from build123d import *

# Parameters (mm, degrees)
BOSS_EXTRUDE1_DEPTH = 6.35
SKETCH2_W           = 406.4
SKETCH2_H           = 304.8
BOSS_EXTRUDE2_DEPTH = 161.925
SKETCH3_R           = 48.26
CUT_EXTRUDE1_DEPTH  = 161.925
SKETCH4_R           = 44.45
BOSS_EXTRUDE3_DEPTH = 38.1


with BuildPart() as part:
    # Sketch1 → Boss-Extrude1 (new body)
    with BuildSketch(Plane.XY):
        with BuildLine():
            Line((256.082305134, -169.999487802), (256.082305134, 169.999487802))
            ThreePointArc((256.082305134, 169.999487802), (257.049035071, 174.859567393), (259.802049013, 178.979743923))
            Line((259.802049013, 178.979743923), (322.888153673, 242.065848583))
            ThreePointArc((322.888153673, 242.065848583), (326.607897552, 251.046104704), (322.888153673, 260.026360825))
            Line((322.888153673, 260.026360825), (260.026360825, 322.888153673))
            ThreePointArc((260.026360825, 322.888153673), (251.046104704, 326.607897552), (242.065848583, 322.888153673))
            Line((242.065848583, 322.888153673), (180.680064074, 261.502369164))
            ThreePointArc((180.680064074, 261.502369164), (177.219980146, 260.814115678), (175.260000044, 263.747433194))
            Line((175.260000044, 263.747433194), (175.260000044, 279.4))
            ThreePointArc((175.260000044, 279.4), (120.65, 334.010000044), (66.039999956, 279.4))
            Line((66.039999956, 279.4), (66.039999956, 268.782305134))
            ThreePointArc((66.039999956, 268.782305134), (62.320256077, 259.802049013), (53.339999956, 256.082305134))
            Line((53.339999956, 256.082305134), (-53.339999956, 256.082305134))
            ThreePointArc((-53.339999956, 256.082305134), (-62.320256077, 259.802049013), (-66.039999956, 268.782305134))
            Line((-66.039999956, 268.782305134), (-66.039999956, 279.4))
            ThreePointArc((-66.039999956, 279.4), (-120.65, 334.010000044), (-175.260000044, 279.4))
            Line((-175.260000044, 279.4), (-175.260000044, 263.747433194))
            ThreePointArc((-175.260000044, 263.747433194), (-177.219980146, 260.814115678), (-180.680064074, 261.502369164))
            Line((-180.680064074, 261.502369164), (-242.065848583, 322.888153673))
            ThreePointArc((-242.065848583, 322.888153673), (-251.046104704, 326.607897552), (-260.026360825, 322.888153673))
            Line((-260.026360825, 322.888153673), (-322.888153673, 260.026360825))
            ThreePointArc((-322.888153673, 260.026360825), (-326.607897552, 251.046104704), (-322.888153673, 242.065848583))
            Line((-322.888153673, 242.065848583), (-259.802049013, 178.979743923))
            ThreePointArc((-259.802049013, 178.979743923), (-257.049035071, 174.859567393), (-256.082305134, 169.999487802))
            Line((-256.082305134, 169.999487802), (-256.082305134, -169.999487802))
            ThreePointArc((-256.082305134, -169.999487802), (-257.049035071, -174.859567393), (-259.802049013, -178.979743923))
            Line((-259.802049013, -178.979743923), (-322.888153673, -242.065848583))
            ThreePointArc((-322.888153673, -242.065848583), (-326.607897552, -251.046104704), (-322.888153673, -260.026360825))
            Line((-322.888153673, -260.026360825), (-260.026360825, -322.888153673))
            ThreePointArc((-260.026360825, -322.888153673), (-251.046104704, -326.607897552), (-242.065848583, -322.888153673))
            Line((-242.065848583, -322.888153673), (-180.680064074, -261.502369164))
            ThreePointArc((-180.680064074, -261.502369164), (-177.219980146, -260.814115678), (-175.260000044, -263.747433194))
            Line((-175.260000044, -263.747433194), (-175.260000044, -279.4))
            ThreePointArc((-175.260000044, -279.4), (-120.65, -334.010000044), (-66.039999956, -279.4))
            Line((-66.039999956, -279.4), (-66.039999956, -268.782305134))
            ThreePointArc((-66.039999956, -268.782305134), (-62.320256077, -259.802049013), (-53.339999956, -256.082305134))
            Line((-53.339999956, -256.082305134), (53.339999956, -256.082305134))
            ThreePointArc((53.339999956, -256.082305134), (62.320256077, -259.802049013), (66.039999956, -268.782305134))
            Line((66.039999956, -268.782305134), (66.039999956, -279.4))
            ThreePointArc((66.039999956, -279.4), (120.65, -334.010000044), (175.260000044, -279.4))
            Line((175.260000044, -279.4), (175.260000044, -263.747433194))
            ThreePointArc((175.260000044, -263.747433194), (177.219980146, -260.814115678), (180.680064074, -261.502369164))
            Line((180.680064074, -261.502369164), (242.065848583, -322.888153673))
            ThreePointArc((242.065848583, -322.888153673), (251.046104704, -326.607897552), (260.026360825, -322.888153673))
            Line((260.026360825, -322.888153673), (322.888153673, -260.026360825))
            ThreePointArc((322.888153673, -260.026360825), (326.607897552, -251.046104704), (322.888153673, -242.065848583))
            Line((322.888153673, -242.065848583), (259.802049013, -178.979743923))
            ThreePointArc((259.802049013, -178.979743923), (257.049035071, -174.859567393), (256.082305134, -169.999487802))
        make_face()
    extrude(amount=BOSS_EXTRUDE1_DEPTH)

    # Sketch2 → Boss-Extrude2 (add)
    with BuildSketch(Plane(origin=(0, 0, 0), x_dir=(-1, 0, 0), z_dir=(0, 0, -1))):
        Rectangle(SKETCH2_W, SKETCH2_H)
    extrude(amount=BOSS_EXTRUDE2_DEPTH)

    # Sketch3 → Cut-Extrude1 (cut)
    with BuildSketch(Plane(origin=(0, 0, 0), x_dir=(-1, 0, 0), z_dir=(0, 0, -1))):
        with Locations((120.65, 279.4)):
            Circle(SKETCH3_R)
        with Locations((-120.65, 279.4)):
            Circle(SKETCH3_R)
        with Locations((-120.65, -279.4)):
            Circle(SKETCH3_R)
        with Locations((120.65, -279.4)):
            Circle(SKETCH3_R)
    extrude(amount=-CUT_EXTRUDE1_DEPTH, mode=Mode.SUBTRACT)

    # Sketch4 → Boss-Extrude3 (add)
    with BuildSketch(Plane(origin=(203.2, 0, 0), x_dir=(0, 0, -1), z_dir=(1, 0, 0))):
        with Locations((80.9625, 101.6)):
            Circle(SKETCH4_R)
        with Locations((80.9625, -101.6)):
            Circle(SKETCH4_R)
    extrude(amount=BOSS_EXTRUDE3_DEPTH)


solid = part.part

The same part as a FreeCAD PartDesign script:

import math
import FreeCAD as App
import Part
import Sketcher

V = App.Vector
Q = App.Units.Quantity

doc = App.newDocument("Part")
body = doc.addObject("PartDesign::Body", "Body")

# Sketch on XY plane
sketch1 = body.newObject("Sketcher::SketchObject", "Sketch")
sketch1.AttachmentSupport = (doc.getObject("XY_Plane"), [""])
sketch1.MapMode = "FlatFace"
sketch1.addGeometry([
    Part.LineSegment(V(256.1, -170, 0), V(256.1, 170, 0)),  # 0
    Part.ArcOfCircle(Part.Circle(V(268.8, 170, 0), V(0, 0, 1), 12.7), math.radians(135), math.radians(180)),  # 1
    Part.LineSegment(V(259.8, 179, 0), V(322.9, 242.1, 0)),  # 2
    Part.ArcOfCircle(Part.Circle(V(313.9, 251, 0), V(0, 0, 1), 12.7), math.radians(-45), math.radians(45)),  # 3
    Part.LineSegment(V(322.9, 260, 0), V(260, 322.9, 0)),  # 4
    Part.ArcOfCircle(Part.Circle(V(251, 313.9, 0), V(0, 0, 1), 12.7), math.radians(45), math.radians(135)),  # 5
    Part.LineSegment(V(242.1, 322.9, 0), V(180.7, 261.5, 0)),  # 6
    Part.ArcOfCircle(Part.Circle(V(178.4, 263.7, 0), V(0, 0, 1), 3.2), math.radians(180), math.radians(315)),  # 7
    Part.LineSegment(V(175.3, 263.7, 0), V(175.3, 279.4, 0)),  # 8
    Part.ArcOfCircle(Part.Circle(V(120.7, 279.4, 0), V(0, 0, 1), 54.6), math.radians(0), math.radians(180)),  # 9
    Part.LineSegment(V(66, 279.4, 0), V(66, 268.8, 0)),  # 10
    Part.ArcOfCircle(Part.Circle(V(53.3, 268.8, 0), V(0, 0, 1), 12.7), math.radians(-90), math.radians(0)),  # 11
    Part.LineSegment(V(53.3, 256.1, 0), V(-53.3, 256.1, 0)),  # 12
    Part.ArcOfCircle(Part.Circle(V(-53.3, 268.8, 0), V(0, 0, 1), 12.7), math.radians(180), math.radians(270)),  # 13
    Part.LineSegment(V(-66, 268.8, 0), V(-66, 279.4, 0)),  # 14
    Part.ArcOfCircle(Part.Circle(V(-120.7, 279.4, 0), V(0, 0, 1), 54.6), math.radians(0), math.radians(180)),  # 15
    Part.LineSegment(V(-175.3, 279.4, 0), V(-175.3, 263.7, 0)),  # 16
    Part.ArcOfCircle(Part.Circle(V(-178.4, 263.7, 0), V(0, 0, 1), 3.2), math.radians(-135), math.radians(0)),  # 17
    Part.LineSegment(V(-180.7, 261.5, 0), V(-242.1, 322.9, 0)),  # 18
    Part.ArcOfCircle(Part.Circle(V(-251, 313.9, 0), V(0, 0, 1), 12.7), math.radians(45), math.radians(135)),  # 19
    Part.LineSegment(V(-260, 322.9, 0), V(-322.9, 260, 0)),  # 20
    Part.ArcOfCircle(Part.Circle(V(-313.9, 251, 0), V(0, 0, 1), 12.7), math.radians(135), math.radians(225)),  # 21
    Part.LineSegment(V(-322.9, 242.1, 0), V(-259.8, 179, 0)),  # 22
    Part.ArcOfCircle(Part.Circle(V(-268.8, 170, 0), V(0, 0, 1), 12.7), math.radians(0), math.radians(45)),  # 23
    Part.LineSegment(V(-256.1, 170, 0), V(-256.1, -170, 0)),  # 24
    Part.ArcOfCircle(Part.Circle(V(-268.8, -170, 0), V(0, 0, 1), 12.7), math.radians(-45), math.radians(0)),  # 25
    Part.LineSegment(V(-259.8, -179, 0), V(-322.9, -242.1, 0)),  # 26
    Part.ArcOfCircle(Part.Circle(V(-313.9, -251, 0), V(0, 0, 1), 12.7), math.radians(135), math.radians(225)),  # 27
    Part.LineSegment(V(-322.9, -260, 0), V(-260, -322.9, 0)),  # 28
    Part.ArcOfCircle(Part.Circle(V(-251, -313.9, 0), V(0, 0, 1), 12.7), math.radians(-135), math.radians(-45)),  # 29
    Part.LineSegment(V(-242.1, -322.9, 0), V(-180.7, -261.5, 0)),  # 30
    Part.ArcOfCircle(Part.Circle(V(-178.4, -263.7, 0), V(0, 0, 1), 3.2), math.radians(0), math.radians(135)),  # 31
    Part.LineSegment(V(-175.3, -263.7, 0), V(-175.3, -279.4, 0)),  # 32
    Part.ArcOfCircle(Part.Circle(V(-120.7, -279.4, 0), V(0, 0, 1), 54.6), math.radians(180), math.radians(360)),  # 33
    Part.LineSegment(V(-66, -279.4, 0), V(-66, -268.8, 0)),  # 34
    Part.ArcOfCircle(Part.Circle(V(-53.3, -268.8, 0), V(0, 0, 1), 12.7), math.radians(90), math.radians(180)),  # 35
    Part.LineSegment(V(-53.3, -256.1, 0), V(53.3, -256.1, 0)),  # 36
    Part.ArcOfCircle(Part.Circle(V(53.3, -268.8, 0), V(0, 0, 1), 12.7), math.radians(0), math.radians(90)),  # 37
    Part.LineSegment(V(66, -268.8, 0), V(66, -279.4, 0)),  # 38
    Part.ArcOfCircle(Part.Circle(V(120.7, -279.4, 0), V(0, 0, 1), 54.6), math.radians(180), math.radians(360)),  # 39
    Part.LineSegment(V(175.3, -279.4, 0), V(175.3, -263.7, 0)),  # 40
    Part.ArcOfCircle(Part.Circle(V(178.4, -263.7, 0), V(0, 0, 1), 3.2), math.radians(45), math.radians(180)),  # 41
    Part.LineSegment(V(180.7, -261.5, 0), V(242.1, -322.9, 0)),  # 42
    Part.ArcOfCircle(Part.Circle(V(251, -313.9, 0), V(0, 0, 1), 12.7), math.radians(-135), math.radians(-45)),  # 43
    Part.LineSegment(V(260, -322.9, 0), V(322.9, -260, 0)),  # 44
    Part.ArcOfCircle(Part.Circle(V(313.9, -251, 0), V(0, 0, 1), 12.7), math.radians(-45), math.radians(45)),  # 45
    Part.LineSegment(V(322.9, -242.1, 0), V(259.8, -179, 0)),  # 46
    Part.ArcOfCircle(Part.Circle(V(268.8, -170, 0), V(0, 0, 1), 12.7), math.radians(180), math.radians(225)),  # 47
], False)
sketch1.addConstraint([
    Sketcher.Constraint("Tangent", 0, 2, 1, 2),
    Sketcher.Constraint("Tangent", 1, 1, 2, 1),
    Sketcher.Constraint("Tangent", 2, 2, 3, 1),
    Sketcher.Constraint("Tangent", 3, 2, 4, 1),
    Sketcher.Constraint("Tangent", 4, 2, 5, 1),
    Sketcher.Constraint("Tangent", 5, 2, 6, 1),
    Sketcher.Constraint("Tangent", 6, 2, 7, 2),
    Sketcher.Constraint("Tangent", 7, 1, 8, 1),
    Sketcher.Constraint("Tangent", 8, 2, 9, 1),
    Sketcher.Constraint("Tangent", 9, 2, 10, 1),
    Sketcher.Constraint("Tangent", 10, 2, 11, 2),
    Sketcher.Constraint("Tangent", 11, 1, 12, 1),
    Sketcher.Constraint("Tangent", 12, 2, 13, 2),
    Sketcher.Constraint("Tangent", 13, 1, 14, 1),
    Sketcher.Constraint("Tangent", 14, 2, 15, 1),
    Sketcher.Constraint("Tangent", 15, 2, 16, 1),
    Sketcher.Constraint("Tangent", 16, 2, 17, 2),
    Sketcher.Constraint("Tangent", 17, 1, 18, 1),
    Sketcher.Constraint("Tangent", 18, 2, 19, 1),
    Sketcher.Constraint("Tangent", 19, 2, 20, 1),
    Sketcher.Constraint("Tangent", 20, 2, 21, 1),
    Sketcher.Constraint("Tangent", 21, 2, 22, 1),
    Sketcher.Constraint("Tangent", 22, 2, 23, 2),
    Sketcher.Constraint("Tangent", 23, 1, 24, 1),
    Sketcher.Constraint("Tangent", 24, 2, 25, 2),
    Sketcher.Constraint("Tangent", 25, 1, 26, 1),
    Sketcher.Constraint("Tangent", 26, 2, 27, 1),
    Sketcher.Constraint("Tangent", 27, 2, 28, 1),
    Sketcher.Constraint("Tangent", 28, 2, 29, 1),
    Sketcher.Constraint("Tangent", 29, 2, 30, 1),
    Sketcher.Constraint("Tangent", 30, 2, 31, 2),
    Sketcher.Constraint("Tangent", 31, 1, 32, 1),
    Sketcher.Constraint("Tangent", 32, 2, 33, 1),
    Sketcher.Constraint("Tangent", 33, 2, 34, 1),
    Sketcher.Constraint("Tangent", 34, 2, 35, 2),
    Sketcher.Constraint("Tangent", 35, 1, 36, 1),
    Sketcher.Constraint("Tangent", 36, 2, 37, 2),
    Sketcher.Constraint("Tangent", 37, 1, 38, 1),
    Sketcher.Constraint("Tangent", 38, 2, 39, 1),
    Sketcher.Constraint("Tangent", 39, 2, 40, 1),
    Sketcher.Constraint("Tangent", 40, 2, 41, 2),
    Sketcher.Constraint("Tangent", 41, 1, 42, 1),
    Sketcher.Constraint("Tangent", 42, 2, 43, 1),
    Sketcher.Constraint("Tangent", 43, 2, 44, 1),
    Sketcher.Constraint("Tangent", 44, 2, 45, 1),
    Sketcher.Constraint("Tangent", 45, 2, 46, 1),
    Sketcher.Constraint("Tangent", 46, 2, 47, 2),
    Sketcher.Constraint("Tangent", 47, 1, 0, 1),
    Sketcher.Constraint("Vertical", 0),
    Sketcher.Constraint("Vertical", 8),
    Sketcher.Constraint("Vertical", 10),
    Sketcher.Constraint("Horizontal", 12),
    Sketcher.Constraint("Vertical", 14),
    Sketcher.Constraint("Vertical", 16),
    Sketcher.Constraint("Vertical", 24),
    Sketcher.Constraint("Vertical", 32),
    Sketcher.Constraint("Vertical", 34),
    Sketcher.Constraint("Horizontal", 36),
    Sketcher.Constraint("Vertical", 38),
    Sketcher.Constraint("Vertical", 40),
    Sketcher.Constraint("Equal", 1, 3),
    Sketcher.Constraint("Equal", 3, 5),
    Sketcher.Constraint("Equal", 5, 11),
    Sketcher.Constraint("Equal", 11, 13),
    Sketcher.Constraint("Equal", 9, 15),
    Sketcher.Constraint("Equal", 7, 17),
    Sketcher.Constraint("Equal", 13, 19),
    Sketcher.Constraint("Equal", 19, 21),
    Sketcher.Constraint("Equal", 21, 23),
    Sketcher.Constraint("Equal", 23, 25),
    Sketcher.Constraint("Equal", 25, 27),
    Sketcher.Constraint("Equal", 27, 29),
    Sketcher.Constraint("Equal", 17, 31),
    Sketcher.Constraint("Equal", 15, 33),
    Sketcher.Constraint("Equal", 29, 35),
    Sketcher.Constraint("Equal", 35, 37),
    Sketcher.Constraint("Equal", 33, 39),
    Sketcher.Constraint("Equal", 31, 41),
    Sketcher.Constraint("Equal", 37, 43),
    Sketcher.Constraint("Equal", 43, 45),
    Sketcher.Constraint("Equal", 45, 47),
    Sketcher.Constraint("Symmetric", 1, 3, 25, 3, -1, 1),
    Sketcher.Constraint("Symmetric", 3, 3, 27, 3, -1, 1),
    Sketcher.Constraint("Symmetric", 5, 3, 29, 3, -1, 1),
    Sketcher.Constraint("Symmetric", 7, 3, 31, 3, -1, 1),
    Sketcher.Constraint("Symmetric", 13, 3, 37, 3, -1, 1),
    Sketcher.Constraint("Symmetric", 19, 3, 43, 3, -1, 1),
    Sketcher.Constraint("Symmetric", 21, 3, 45, 3, -1, 1),
    Sketcher.Constraint("Symmetric", 9, 3, 15, 3, -2),
    Sketcher.Constraint("Symmetric", 5, 3, 19, 3, -2),
    Sketcher.Constraint("Symmetric", 3, 3, 21, 3, -2),
    Sketcher.Constraint("Perpendicular", 2, 4),
    Sketcher.Constraint("Perpendicular", 4, 6),
    Sketcher.Constraint("Perpendicular", 6, 18),
    Sketcher.Constraint("Perpendicular", 18, 20),
    Sketcher.Constraint("Perpendicular", 20, 22),
    Sketcher.Constraint("Perpendicular", 30, 42),
    Sketcher.Constraint("Perpendicular", 44, 46),
    Sketcher.Constraint("Horizontal", 33, 3, 39, 3),
    Sketcher.Constraint("Equal", 16, 32),
    Sketcher.Constraint("Radius", 1, Q("0.5 in")),
    Sketcher.Constraint("Radius", 9, Q("2.15 in")),
    Sketcher.Constraint("DistanceX", 12, 2, 12, 1, Q("4.2 in")),
    Sketcher.Constraint("DistanceY", -1, 1, 9, 3, Q("11 in")),
    Sketcher.Constraint("Radius", 7, Q("0.125 in")),
    Sketcher.Constraint("Distance", 4, Q("3.5 in")),
    Sketcher.Constraint("Distance", 6, Q("86.812609 mm")),
    Sketcher.Constraint("DistanceY", 0, 1, 0, 2, Q("339.998976 mm")),
    Sketcher.Constraint("DistanceY", 8, 1, 8, 2, Q("15.652567 mm")),
    Sketcher.Constraint("DistanceY", 10, 2, 10, 1, Q("10.617695 mm")),
])
pad1 = body.newObject("PartDesign::Pad", "Pad")
pad1.Profile = sketch1
pad1.Length = Q("0.25 in")

# Sketch on XY plane
sketch2 = body.newObject("Sketcher::SketchObject", "Sketch001")
sketch2.AttachmentSupport = (doc.getObject("XY_Plane"), [""])
sketch2.MapMode = "FlatFace"
sketch2.addGeometry([
    Part.LineSegment(V(203, 152, 0), V(203, -152, 0)),
    Part.LineSegment(V(203, -152, 0), V(-203, -152, 0)),
    Part.LineSegment(V(-203, -152, 0), V(-203, 152, 0)),
    Part.LineSegment(V(-203, 152, 0), V(203, 152, 0)),
], False)
sketch2.addConstraint([
    Sketcher.Constraint("Coincident", 0, 2, 1, 1),
    Sketcher.Constraint("Coincident", 1, 2, 2, 1),
    Sketcher.Constraint("Coincident", 2, 2, 3, 1),
    Sketcher.Constraint("Coincident", 3, 2, 0, 1),
    Sketcher.Constraint("Vertical", 0),
    Sketcher.Constraint("Horizontal", 1),
    Sketcher.Constraint("Vertical", 2),
    Sketcher.Constraint("Horizontal", 3),
    Sketcher.Constraint("Symmetric", 0, 2, 2, 2, -1, 1),
    Sketcher.Constraint("DistanceX", 1, 2, 1, 1, Q("16 in")),
    Sketcher.Constraint("DistanceY", 0, 2, 0, 1, Q("12 in")),
])
pad2 = body.newObject("PartDesign::Pad", "Pad001")
pad2.Profile = sketch2
pad2.Length = Q("6.375 in")
pad2.Reversed = True

# Sketch on XY plane
sketch3 = body.newObject("Sketcher::SketchObject", "Sketch002")
sketch3.AttachmentSupport = (doc.getObject("XY_Plane"), [""])
sketch3.MapMode = "FlatFace"
sketch3.addGeometry([
    Part.Circle(V(-121, 279, 0), V(0, 0, 1), 48),
    Part.Circle(V(121, 279, 0), V(0, 0, 1), 48),
    Part.Circle(V(121, -279, 0), V(0, 0, 1), 48),
    Part.Circle(V(-121, -279, 0), V(0, 0, 1), 48),
], False)
sketch3.addConstraint([
    Sketcher.Constraint("Equal", 0, 1),
    Sketcher.Constraint("Equal", 1, 2),
    Sketcher.Constraint("Equal", 2, 3),
    Sketcher.Constraint("Symmetric", 0, 3, 2, 3, -1, 1),
    Sketcher.Constraint("Symmetric", 1, 3, 3, 3, -1, 1),
    Sketcher.Constraint("Symmetric", 0, 3, 1, 3, -2),
    Sketcher.Constraint("Diameter", 0, Q("3.8 in")),
    Sketcher.Constraint("DistanceY", -1, 1, 0, 3, Q("11 in")),
    Sketcher.Constraint("DistanceX", 0, 3, 1, 3, Q("9.5 in")),
])
pocket1 = body.newObject("PartDesign::Pocket", "Pocket")
pocket1.Profile = sketch3
pocket1.Length = Q("6.375 in")
pocket1.Reversed = True

# Sketch on YZ plane
sketch4 = body.newObject("Sketcher::SketchObject", "Sketch003")
sketch4.AttachmentSupport = (doc.getObject("YZ_Plane"), [""])
sketch4.MapMode = "FlatFace"
sketch4.AttachmentOffset = App.Placement(V(0, 0, 8 * 25.4), App.Rotation())
sketch4.addGeometry([
    Part.Circle(V(102, -81, 0), V(0, 0, 1), 44),
    Part.Circle(V(-102, -81, 0), V(0, 0, 1), 44),
], False)
sketch4.addConstraint([
    Sketcher.Constraint("Equal", 0, 1),
    Sketcher.Constraint("Symmetric", 0, 3, 1, 3, -2),
    Sketcher.Constraint("Diameter", 0, Q("3.5 in")),
    Sketcher.Constraint("DistanceX", -1, 1, 0, 3, Q("4 in")),
    Sketcher.Constraint("DistanceY", 0, 3, -1, 1, Q("3.1875 in")),
])
pad3 = body.newObject("PartDesign::Pad", "Pad002")
pad3.Profile = sketch4
pad3.Length = Q("1.5 in")

doc.recompute()
